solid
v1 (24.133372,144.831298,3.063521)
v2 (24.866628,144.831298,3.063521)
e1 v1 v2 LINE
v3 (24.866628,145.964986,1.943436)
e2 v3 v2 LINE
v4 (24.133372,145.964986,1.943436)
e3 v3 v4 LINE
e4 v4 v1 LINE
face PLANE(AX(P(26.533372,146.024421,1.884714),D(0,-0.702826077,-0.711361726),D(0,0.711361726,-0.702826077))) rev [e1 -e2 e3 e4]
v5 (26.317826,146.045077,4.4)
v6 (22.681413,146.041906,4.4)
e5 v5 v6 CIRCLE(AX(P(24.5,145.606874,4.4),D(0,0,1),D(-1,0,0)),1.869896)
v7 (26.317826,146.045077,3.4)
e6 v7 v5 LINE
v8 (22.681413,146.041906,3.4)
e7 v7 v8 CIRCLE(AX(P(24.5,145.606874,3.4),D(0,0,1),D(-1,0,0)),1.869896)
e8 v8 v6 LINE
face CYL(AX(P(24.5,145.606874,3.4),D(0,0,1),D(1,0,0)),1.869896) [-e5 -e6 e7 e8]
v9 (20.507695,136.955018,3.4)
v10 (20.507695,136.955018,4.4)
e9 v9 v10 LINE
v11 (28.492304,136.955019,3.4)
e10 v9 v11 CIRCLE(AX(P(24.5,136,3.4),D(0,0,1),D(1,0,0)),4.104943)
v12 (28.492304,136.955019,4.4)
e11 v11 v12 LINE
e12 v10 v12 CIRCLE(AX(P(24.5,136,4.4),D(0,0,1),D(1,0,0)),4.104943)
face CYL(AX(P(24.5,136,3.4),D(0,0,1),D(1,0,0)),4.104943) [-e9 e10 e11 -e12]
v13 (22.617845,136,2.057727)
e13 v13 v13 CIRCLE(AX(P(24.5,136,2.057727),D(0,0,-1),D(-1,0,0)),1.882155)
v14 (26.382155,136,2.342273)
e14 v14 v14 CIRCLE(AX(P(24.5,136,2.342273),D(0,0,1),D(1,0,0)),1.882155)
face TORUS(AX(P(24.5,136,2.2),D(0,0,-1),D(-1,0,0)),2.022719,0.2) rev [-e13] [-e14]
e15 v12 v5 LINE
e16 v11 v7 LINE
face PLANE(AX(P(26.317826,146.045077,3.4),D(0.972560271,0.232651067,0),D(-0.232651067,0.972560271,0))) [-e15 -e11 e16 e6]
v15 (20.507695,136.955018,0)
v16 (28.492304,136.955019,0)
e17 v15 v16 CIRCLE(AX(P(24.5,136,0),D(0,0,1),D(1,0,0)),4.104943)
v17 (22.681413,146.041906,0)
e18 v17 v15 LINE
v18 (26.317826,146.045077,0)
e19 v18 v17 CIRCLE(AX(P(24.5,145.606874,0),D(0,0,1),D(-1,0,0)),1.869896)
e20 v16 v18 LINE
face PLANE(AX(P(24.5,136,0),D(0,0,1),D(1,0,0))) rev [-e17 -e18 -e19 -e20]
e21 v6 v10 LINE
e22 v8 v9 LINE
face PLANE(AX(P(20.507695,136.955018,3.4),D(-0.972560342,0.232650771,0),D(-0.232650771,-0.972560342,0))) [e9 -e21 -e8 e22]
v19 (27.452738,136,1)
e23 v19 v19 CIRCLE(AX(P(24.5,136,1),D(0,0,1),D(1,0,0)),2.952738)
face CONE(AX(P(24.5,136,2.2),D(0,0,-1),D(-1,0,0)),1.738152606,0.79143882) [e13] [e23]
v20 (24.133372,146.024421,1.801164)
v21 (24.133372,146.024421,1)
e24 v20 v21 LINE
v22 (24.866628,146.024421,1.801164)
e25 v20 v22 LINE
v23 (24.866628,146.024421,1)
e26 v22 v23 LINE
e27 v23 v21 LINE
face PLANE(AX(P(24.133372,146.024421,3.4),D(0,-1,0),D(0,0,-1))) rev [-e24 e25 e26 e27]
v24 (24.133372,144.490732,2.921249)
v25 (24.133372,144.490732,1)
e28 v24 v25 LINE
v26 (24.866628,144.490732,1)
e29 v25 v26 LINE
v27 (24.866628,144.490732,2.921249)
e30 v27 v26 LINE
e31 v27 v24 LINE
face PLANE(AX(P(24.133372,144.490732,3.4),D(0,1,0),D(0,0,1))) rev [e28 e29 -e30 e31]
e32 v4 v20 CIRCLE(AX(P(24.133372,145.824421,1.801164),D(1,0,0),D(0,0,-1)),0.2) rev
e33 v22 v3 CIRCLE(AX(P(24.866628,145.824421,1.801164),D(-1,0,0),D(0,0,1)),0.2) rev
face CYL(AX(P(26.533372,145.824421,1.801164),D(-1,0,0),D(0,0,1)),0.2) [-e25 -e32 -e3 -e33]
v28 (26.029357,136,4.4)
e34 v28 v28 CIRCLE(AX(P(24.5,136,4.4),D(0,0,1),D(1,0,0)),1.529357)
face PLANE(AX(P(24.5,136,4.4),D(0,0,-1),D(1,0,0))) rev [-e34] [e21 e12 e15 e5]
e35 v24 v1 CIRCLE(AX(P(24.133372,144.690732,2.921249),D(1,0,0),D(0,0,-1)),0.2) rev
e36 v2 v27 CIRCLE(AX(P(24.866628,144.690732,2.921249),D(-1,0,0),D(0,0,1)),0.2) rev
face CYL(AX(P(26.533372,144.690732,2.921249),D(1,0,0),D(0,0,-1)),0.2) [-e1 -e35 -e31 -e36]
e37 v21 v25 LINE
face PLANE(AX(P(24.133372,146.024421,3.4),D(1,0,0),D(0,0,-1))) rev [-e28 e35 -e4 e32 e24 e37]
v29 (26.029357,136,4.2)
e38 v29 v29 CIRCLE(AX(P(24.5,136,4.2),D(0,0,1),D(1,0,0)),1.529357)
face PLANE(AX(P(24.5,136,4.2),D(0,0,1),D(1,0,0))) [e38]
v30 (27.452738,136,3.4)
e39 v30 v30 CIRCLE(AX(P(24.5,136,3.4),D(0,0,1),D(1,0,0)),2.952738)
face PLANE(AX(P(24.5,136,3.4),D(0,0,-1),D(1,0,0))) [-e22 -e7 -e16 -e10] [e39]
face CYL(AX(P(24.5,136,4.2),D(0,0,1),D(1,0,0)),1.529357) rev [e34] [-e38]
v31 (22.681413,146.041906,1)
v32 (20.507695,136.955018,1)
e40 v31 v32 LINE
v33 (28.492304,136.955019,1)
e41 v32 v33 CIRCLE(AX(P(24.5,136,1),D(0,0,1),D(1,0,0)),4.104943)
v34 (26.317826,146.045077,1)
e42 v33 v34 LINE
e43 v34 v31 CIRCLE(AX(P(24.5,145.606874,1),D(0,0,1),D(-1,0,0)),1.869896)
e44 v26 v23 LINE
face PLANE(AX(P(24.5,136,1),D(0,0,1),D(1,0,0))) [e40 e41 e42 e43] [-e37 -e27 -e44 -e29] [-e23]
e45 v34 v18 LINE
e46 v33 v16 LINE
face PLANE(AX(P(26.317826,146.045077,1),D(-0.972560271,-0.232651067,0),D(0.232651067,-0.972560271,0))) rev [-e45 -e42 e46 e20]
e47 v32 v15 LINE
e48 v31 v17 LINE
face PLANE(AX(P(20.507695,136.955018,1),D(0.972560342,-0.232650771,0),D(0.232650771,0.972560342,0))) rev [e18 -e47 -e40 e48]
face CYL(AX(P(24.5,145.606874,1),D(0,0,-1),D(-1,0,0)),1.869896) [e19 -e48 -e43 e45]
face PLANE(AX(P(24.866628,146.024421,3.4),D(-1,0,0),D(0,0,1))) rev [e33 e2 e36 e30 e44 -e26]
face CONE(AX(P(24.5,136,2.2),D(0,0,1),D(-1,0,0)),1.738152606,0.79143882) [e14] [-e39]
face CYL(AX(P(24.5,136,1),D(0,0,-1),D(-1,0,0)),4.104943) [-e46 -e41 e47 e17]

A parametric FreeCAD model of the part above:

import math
import FreeCAD as App
import Part
import Sketcher

V = App.Vector
Q = App.Units.Quantity


def edges_at(feature, points):
    """Names of the edges that pass closest to the given points."""
    edges = feature.Shape.Edges
    near = lambda p: min(range(len(edges)), key=lambda i: edges[i].distToShape(Part.Vertex(*p))[0])
    return sorted({f"Edge{near(p) + 1}" for p in points})


def add_polygon(sketch, points):
    """Adds a closed chain of lines whose ends are joined by coincident constraints."""
    first, n = sketch.GeometryCount, len(points)
    for a, b in zip(points, points[1:] + points[:1]):
        sketch.addGeometry(Part.LineSegment(App.Vector(*a, 0), App.Vector(*b, 0)), False)
    for i in range(n):
        sketch.addConstraint(Sketcher.Constraint("Coincident", first + i, 2, first + (i + 1) % n, 1))

doc = App.newDocument("Part")
params = doc.addObject("Spreadsheet::Sheet", "Params")
for row, (alias, value) in enumerate([
    ("pad1_length", "1 mm"),
    ("pad2_length", "2.4 mm"),
    ("pocket1_length", "2.4 mm"),
    ("fillet_radius", "0.2 mm"),
    ("fillet2_radius", "0.2 mm"),
    ("pocket2_length", "0.2 mm"),
], start=1):
    params.set(f"A{row}", alias)
    params.set(f"B{row}", "=" + value)
    params.setAlias(f"B{row}", alias)

body = doc.addObject("PartDesign::Body", "Body")

# Sketch on XY plane
sketch1 = body.newObject("Sketcher::SketchObject", "Sketch")
sketch1.AttachmentSupport = (doc.getObject("XY_Plane"), [""])
sketch1.MapMode = "FlatFace"
sketch1.addGeometry([
    Part.LineSegment(V(22.7, 146, 0), V(20.5, 137, 0)),
    Part.ArcOfCircle(Part.Circle(V(24.5, 136, 0), V(0, 0, 1), 4.1), math.radians(167), math.radians(373)),
    Part.LineSegment(V(28.5, 137, 0), V(26.3, 146, 0)),
    Part.ArcOfCircle(Part.Circle(V(24.5, 145.6, 0), V(0, 0, 1), 1.9), math.radians(14), math.radians(167)),
], False)
sketch1.addConstraint([
    Sketcher.Constraint("Tangent", 0, 2, 1, 1),
    Sketcher.Constraint("Tangent", 1, 2, 2, 1),
    Sketcher.Constraint("Coincident", 2, 2, 3, 1),
    Sketcher.Constraint("Tangent", 3, 2, 0, 1),
    Sketcher.Constraint("Horizontal", 0, 2, 1, 2),
    Sketcher.Constraint("DistanceY", -1, 1, 1, 3, Q("136 mm")),
    Sketcher.Constraint("DistanceX", -1, 1, 1, 3, Q("24.5 mm")),
    Sketcher.Constraint("Radius", 1, Q("4.104943 mm")),
    Sketcher.Constraint("Radius", 3, Q("1.869896 mm")),
    Sketcher.Constraint("DistanceY", -1, 1, 0, 2, Q("136.955018 mm")),
    Sketcher.Constraint("DistanceX", 2, 2, 1, 2, Q("2.174479 mm")),
])
pad1 = body.newObject("PartDesign::Pad", "Pad")
pad1.Profile = sketch1
pad1.setExpression("Length", "Params.pad1_length")

# Sketch on XY plane
sketch2 = body.newObject("Sketcher::SketchObject", "Sketch001")
sketch2.AttachmentSupport = (doc.getObject("XY_Plane"), [""])
sketch2.MapMode = "FlatFace"
sketch2.AttachmentOffset = App.Placement(V(0, 0, 1), App.Rotation())
sketch2.addGeometry(Part.Circle(V(24.5, 136, 0), V(0, 0, 1), 3), False)
sketch2.addConstraint([
    Sketcher.Constraint("DistanceY", -1, 1, 0, 3, Q("136 mm")),
    Sketcher.Constraint("DistanceX", -1, 1, 0, 3, Q("24.5 mm")),
    Sketcher.Constraint("Diameter", 0, Q("5.905477 mm")),
])

# Sketch on XY plane
sketch3 = body.newObject("Sketcher::SketchObject", "Sketch002")
sketch3.AttachmentSupport = (doc.getObject("XY_Plane"), [""])
sketch3.MapMode = "FlatFace"
sketch3.AttachmentOffset = App.Placement(V(0, 0, 2.2), App.Rotation())
sketch3.addGeometry(Part.Circle(V(24.5, 136, 0), V(0, 0, 1), 1.7), False)
sketch3.addConstraint([
    Sketcher.Constraint("DistanceY", -1, 1, 0, 3, Q("136 mm")),
    Sketcher.Constraint("DistanceX", -1, 1, 0, 3, Q("24.5 mm")),
    Sketcher.Constraint("Diameter", 0, Q("3.476305 mm")),
])

additiveloft = body.newObject("PartDesign::AdditiveLoft", "AdditiveLoft")
additiveloft.Profile = sketch2
additiveloft.Sections = [sketch3]

# Sketch on XY plane
sketch4 = body.newObject("Sketcher::SketchObject", "Sketch003")
sketch4.AttachmentSupport = (doc.getObject("XY_Plane"), [""])
sketch4.MapMode = "FlatFace"
sketch4.AttachmentOffset = App.Placement(V(0, 0, 1), App.Rotation())
add_polygon(sketch4, [(24.1, 146), (24.1, 144.5), (24.9, 144.5), (24.9, 146)])  # lines 0-3
sketch4.addConstraint([
    Sketcher.Constraint("Vertical", 0),
    Sketcher.Constraint("Horizontal", 1),
    Sketcher.Constraint("Vertical", 2),
    Sketcher.Constraint("Horizontal", 3),
    Sketcher.Constraint("DistanceY", 0, 2, 0, 1, Q("1.533688 mm")),
    Sketcher.Constraint("DistanceX", 1, 1, 1, 2, Q("0.733256 mm")),
    Sketcher.Constraint("DistanceY", -1, 1, 2, 2, Q("146.024421 mm")),
    Sketcher.Constraint("DistanceX", -1, 1, 0, 2, Q("24.133372 mm")),
])
pad2 = body.newObject("PartDesign::Pad", "Pad001")
pad2.Profile = sketch4
pad2.setExpression("Length", "Params.pad2_length")

# Sketch on YZ plane
sketch5 = body.newObject("Sketcher::SketchObject", "Sketch004")
sketch5.AttachmentSupport = (doc.getObject("YZ_Plane"), [""])
sketch5.MapMode = "FlatFace"
sketch5.AttachmentOffset = App.Placement(V(0, 0, 24.133372), App.Rotation())
add_polygon(sketch5, [(146, 1.9), (144.5, 3.4), (146, 3.4)])  # lines 0-2
sketch5.addConstraint([
    Sketcher.Constraint("Horizontal", 1),
    Sketcher.Constraint("Vertical", 2),
    Sketcher.Constraint("DistanceY", -1, 1, 0, 2, Q("3.4 mm")),
    Sketcher.Constraint("DistanceX", 1, 1, 1, 2, Q("1.533688 mm")),
    Sketcher.Constraint("Distance", 0, Q("2.155989 mm")),
    Sketcher.Constraint("DistanceX", -1, 1, 1, 2, Q("146.024421 mm")),
])
pocket1 = body.newObject("PartDesign::Pocket", "Pocket")
pocket1.Profile = sketch5
pocket1.setExpression("Length", "Params.pocket1_length")
pocket1.Reversed = True
doc.recompute()

fillet = body.newObject("PartDesign::Fillet", "Fillet")
fillet.Base = (pocket1, edges_at(pocket1, [(24.5, 144.491, 3.4), (24.5, 146.024, 1.885)]))
fillet.setExpression("Radius", "Params.fillet_radius")
doc.recompute()

datumplane = body.newObject("PartDesign::Plane", "DatumPlane")
datumplane.AttachmentSupport = (doc.getObject("XY_Plane"), [""])
datumplane.MapMode = "FlatFace"
datumplane.AttachmentOffset = App.Placement(V(0, 0, 2.2), App.Rotation())
mirrored = body.newObject("PartDesign::Mirrored", "Mirrored")
mirrored.Originals = [additiveloft]
mirrored.MirrorPlane = (datumplane, [""])
body.Tip = mirrored
doc.recompute()

datumplane2 = body.newObject("PartDesign::Plane", "DatumPlane001")
datumplane2.AttachmentSupport = (doc.getObject("XY_Plane"), [""])
datumplane2.MapMode = "FlatFace"
datumplane2.AttachmentOffset = App.Placement(V(0, 0, 2.2), App.Rotation())
mirrored2 = body.newObject("PartDesign::Mirrored", "Mirrored001")
mirrored2.Originals = [pad1]
mirrored2.MirrorPlane = (datumplane2, [""])
body.Tip = mirrored2
doc.recompute()

fillet2 = body.newObject("PartDesign::Fillet", "Fillet001")
fillet2.Base = (mirrored2, edges_at(mirrored2, [(22.762, 136, 2.2)]))
fillet2.setExpression("Radius", "Params.fillet2_radius")

# Sketch on XY plane
sketch6 = body.newObject("Sketcher::SketchObject", "Sketch005")
sketch6.AttachmentSupport = (doc.getObject("XY_Plane"), [""])
sketch6.MapMode = "FlatFace"
sketch6.AttachmentOffset = App.Placement(V(0, 0, 4.4), App.Rotation())
sketch6.addGeometry(Part.Circle(V(24.5, 136, 0), V(0, 0, 1), 1.5), False)
sketch6.addConstraint([
    Sketcher.Constraint("DistanceY", -1, 1, 0, 3, Q("136 mm")),
    Sketcher.Constraint("DistanceX", -1, 1, 0, 3, Q("24.5 mm")),
    Sketcher.Constraint("Diameter", 0, Q("3.058714 mm")),
])
pocket2 = body.newObject("PartDesign::Pocket", "Pocket001")
pocket2.Profile = sketch6
pocket2.setExpression("Length", "Params.pocket2_length")

doc.recompute()
